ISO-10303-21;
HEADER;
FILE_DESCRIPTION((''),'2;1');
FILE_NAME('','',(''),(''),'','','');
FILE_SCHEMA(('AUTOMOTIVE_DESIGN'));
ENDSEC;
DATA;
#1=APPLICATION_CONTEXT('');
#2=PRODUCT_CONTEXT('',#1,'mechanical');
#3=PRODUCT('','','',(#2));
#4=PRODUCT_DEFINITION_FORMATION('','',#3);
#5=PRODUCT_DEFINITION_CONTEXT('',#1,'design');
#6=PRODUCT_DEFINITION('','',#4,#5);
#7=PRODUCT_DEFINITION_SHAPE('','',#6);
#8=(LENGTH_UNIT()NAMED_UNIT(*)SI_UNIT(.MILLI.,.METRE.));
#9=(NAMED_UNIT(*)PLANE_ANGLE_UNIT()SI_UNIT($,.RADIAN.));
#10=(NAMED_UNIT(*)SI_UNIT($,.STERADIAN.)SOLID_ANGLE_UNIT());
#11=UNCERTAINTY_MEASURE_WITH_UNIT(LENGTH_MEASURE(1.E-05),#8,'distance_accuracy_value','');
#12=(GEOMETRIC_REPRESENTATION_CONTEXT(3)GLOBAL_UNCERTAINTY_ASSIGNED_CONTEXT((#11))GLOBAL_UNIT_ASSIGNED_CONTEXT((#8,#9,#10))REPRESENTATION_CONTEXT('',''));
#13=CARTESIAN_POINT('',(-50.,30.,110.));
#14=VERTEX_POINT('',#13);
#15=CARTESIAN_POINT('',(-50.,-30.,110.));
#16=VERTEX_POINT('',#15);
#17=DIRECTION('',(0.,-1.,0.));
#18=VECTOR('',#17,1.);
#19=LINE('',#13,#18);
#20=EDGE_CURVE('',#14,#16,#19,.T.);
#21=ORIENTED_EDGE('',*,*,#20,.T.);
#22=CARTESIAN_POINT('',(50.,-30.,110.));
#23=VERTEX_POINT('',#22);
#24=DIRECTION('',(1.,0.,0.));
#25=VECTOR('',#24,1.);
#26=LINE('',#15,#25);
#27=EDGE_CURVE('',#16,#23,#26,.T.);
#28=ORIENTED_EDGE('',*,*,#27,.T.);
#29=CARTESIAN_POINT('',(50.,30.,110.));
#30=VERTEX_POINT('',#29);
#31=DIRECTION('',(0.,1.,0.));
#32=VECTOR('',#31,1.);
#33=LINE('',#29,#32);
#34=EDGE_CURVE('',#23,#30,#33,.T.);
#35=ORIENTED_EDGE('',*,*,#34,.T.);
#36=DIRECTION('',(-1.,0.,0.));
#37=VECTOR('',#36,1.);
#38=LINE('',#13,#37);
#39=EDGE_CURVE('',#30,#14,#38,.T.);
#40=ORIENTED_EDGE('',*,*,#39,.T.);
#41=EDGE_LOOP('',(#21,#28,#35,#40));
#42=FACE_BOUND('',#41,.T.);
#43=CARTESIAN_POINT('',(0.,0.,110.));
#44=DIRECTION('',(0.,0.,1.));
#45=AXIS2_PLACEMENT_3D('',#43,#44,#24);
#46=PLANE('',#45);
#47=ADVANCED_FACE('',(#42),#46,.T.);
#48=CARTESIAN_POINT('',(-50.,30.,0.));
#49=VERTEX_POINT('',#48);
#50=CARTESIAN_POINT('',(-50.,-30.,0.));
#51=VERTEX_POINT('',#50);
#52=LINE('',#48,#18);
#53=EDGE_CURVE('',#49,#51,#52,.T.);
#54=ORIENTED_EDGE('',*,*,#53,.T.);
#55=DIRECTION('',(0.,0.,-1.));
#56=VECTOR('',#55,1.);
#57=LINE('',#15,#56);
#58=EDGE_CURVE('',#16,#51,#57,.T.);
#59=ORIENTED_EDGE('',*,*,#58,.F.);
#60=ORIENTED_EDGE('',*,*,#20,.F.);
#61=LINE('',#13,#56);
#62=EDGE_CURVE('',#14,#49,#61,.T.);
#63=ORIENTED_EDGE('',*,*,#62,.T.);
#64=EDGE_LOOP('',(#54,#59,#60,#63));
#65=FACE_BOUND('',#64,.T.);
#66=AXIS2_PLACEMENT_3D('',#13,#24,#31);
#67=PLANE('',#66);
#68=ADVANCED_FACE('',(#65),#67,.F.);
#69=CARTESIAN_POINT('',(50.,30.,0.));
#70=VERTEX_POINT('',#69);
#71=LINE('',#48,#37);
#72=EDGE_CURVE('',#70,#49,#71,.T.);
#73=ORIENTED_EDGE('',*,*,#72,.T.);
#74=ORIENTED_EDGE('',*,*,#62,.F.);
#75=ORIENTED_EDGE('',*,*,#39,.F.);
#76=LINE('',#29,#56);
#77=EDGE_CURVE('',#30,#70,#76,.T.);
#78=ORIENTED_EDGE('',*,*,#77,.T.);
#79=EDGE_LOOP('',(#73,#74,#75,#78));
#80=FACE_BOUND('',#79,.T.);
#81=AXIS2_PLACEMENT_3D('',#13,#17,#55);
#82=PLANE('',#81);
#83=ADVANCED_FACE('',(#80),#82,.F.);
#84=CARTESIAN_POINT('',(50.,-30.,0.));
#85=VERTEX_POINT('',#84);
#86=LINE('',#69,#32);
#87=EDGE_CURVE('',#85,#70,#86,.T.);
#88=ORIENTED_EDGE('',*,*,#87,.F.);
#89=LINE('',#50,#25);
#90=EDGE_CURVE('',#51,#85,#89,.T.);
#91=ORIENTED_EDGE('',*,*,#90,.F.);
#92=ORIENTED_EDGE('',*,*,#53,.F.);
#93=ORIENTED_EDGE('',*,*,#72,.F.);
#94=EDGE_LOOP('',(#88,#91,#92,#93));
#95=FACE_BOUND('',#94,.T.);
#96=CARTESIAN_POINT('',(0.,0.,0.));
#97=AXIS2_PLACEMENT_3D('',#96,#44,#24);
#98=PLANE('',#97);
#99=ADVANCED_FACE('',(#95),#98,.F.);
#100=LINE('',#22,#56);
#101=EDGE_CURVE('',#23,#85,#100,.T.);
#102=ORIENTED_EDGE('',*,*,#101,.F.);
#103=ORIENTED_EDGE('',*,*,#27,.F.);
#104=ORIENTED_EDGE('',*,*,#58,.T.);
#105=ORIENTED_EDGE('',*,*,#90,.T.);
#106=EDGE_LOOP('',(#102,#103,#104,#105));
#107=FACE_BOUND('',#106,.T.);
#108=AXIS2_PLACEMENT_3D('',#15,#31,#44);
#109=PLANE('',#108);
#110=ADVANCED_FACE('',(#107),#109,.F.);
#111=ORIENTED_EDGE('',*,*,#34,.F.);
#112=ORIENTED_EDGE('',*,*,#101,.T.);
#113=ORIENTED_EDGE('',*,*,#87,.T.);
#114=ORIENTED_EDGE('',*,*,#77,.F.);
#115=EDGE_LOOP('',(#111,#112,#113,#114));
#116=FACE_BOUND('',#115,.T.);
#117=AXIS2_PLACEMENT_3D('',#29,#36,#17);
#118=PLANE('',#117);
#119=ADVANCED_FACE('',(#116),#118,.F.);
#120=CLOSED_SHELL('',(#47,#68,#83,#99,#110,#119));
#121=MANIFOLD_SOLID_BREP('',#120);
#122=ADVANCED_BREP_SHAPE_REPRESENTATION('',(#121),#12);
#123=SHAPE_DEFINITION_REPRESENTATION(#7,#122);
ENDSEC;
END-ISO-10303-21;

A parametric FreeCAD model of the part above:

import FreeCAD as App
import Part
import Sketcher

V = App.Vector
Q = App.Units.Quantity

doc = App.newDocument("Part")
body = doc.addObject("PartDesign::Body", "Body")

sketch1 = doc.addObject("Sketcher::SketchObject", "Sketch")
body.addObject(sketch1)
sketch1.AttachmentSupport = (doc.XY_Plane, [""])
sketch1.MapMode = "FlatFace"
sketch1.addGeometry([
    Part.LineSegment(V(-50, 30, 0), V(-50, -30, 0)),
    Part.LineSegment(V(-50, -30, 0), V(50, -30, 0)),
    Part.LineSegment(V(50, -30, 0), V(50, 30, 0)),
    Part.LineSegment(V(50, 30, 0), V(-50, 30, 0)),
], False)
sketch1.addConstraint([
    Sketcher.Constraint("Coincident", 0, 2, 1, 1),
    Sketcher.Constraint("Coincident", 1, 2, 2, 1),
    Sketcher.Constraint("Coincident", 2, 2, 3, 1),
    Sketcher.Constraint("Coincident", 3, 2, 0, 1),
    Sketcher.Constraint("Vertical", 0),
    Sketcher.Constraint("Horizontal", 1),
    Sketcher.Constraint("Vertical", 2),
    Sketcher.Constraint("Horizontal", 3),
    Sketcher.Constraint("Symmetric", 0, 2, 2, 2, -1, 1),
    Sketcher.Constraint("DistanceX", 1, 1, 1, 2, Q("100 mm")),
    Sketcher.Constraint("DistanceY", 0, 2, 0, 1, Q("60 mm")),
])
pad1 = doc.addObject("PartDesign::Pad", "Pad")
body.addObject(pad1)
pad1.Profile = sketch1
pad1.Length = 110

doc.recompute()
